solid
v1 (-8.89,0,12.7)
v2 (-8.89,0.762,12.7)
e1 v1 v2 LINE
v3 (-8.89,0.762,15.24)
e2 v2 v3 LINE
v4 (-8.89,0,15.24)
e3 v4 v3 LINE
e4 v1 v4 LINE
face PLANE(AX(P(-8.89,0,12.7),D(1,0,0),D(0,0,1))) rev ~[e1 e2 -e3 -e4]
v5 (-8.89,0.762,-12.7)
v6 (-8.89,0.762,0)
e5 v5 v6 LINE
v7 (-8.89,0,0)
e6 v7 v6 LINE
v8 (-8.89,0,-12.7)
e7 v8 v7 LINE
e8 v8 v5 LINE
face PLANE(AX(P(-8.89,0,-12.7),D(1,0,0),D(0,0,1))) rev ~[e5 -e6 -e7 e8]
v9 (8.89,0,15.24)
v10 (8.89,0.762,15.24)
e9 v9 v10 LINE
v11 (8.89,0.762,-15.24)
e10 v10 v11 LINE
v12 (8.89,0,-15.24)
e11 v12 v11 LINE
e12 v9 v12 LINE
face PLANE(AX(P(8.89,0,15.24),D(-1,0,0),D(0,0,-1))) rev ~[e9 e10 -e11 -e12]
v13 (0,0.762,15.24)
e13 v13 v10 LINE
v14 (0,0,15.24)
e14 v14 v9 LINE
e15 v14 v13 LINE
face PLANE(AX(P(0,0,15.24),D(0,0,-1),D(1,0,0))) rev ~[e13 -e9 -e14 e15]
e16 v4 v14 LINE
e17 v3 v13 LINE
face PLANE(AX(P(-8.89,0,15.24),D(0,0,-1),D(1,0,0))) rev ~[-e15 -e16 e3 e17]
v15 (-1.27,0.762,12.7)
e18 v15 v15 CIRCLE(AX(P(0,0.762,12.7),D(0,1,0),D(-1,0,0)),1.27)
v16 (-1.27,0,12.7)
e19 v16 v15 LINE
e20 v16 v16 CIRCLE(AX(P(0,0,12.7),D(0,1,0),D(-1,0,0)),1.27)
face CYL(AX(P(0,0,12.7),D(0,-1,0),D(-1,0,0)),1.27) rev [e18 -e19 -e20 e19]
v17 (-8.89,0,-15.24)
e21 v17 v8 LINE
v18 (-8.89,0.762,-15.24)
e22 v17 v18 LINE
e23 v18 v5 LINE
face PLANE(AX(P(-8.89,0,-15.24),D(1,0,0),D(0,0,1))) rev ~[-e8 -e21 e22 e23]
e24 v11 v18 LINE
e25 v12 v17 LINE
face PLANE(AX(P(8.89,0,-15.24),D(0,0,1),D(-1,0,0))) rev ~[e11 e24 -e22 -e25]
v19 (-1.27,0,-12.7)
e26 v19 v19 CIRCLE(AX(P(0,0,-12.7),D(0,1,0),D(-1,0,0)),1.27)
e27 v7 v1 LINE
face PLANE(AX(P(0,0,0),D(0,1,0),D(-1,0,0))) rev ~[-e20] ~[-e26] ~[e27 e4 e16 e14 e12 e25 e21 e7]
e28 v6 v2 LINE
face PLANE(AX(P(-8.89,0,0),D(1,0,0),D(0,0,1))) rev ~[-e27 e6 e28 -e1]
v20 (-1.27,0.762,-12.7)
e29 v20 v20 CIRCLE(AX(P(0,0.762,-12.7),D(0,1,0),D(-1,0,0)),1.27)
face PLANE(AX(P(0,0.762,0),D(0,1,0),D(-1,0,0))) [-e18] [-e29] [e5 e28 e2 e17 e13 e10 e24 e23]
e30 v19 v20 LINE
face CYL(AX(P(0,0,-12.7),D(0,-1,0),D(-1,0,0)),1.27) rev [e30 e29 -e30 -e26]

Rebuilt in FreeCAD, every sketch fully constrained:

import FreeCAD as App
import Part
import Sketcher
from FreeCAD import Vector
Q = App.Units.Quantity


def add_polygon(sketch, points):
    """Adds a closed chain of lines whose ends are joined by coincident constraints."""
    first, n = sketch.GeometryCount, len(points)
    for a, b in zip(points, points[1:] + points[:1]):
        sketch.addGeometry(Part.LineSegment(App.Vector(*a, 0), App.Vector(*b, 0)), False)
    for i in range(n):
        sketch.addConstraint(Sketcher.Constraint("Coincident", first + i, 2, first + (i + 1) % n, 1))

doc = App.newDocument("Part")
params = doc.addObject("Spreadsheet::Sheet", "Params")
for row, (alias, value) in enumerate([
    ("sketch1_diameter", "0.1 in"),
    ("sketch1_width", "0.7 in"),
    ("sketch1_height", "1.2 in"),
    ("pad1_length", "0.03 in"),
], start=1):
    params.set(f"A{row}", alias)
    params.set(f"B{row}", "=" + value)
    params.setAlias(f"B{row}", alias)

body = doc.addObject("PartDesign::Body", "Body")

sketch1 = doc.addObject("Sketcher::SketchObject", "Sketch")
body.addObject(sketch1)
sketch1.AttachmentSupport = (doc.XZ_Plane, [""])
sketch1.MapMode = "FlatFace"
add_polygon(sketch1, [(-8.9, -15.2), (-8.9, 15.2), (8.9, 15.2), (8.9, -15.2)])
sketch1.addGeometry(Part.Circle(Vector(0, -12.7, 0), Vector(0, 0, 1), 1.3), False)
sketch1.addGeometry(Part.Circle(Vector(0, 12.7, 0), Vector(0, 0, 1), 1.3), False)
sketch1.addConstraint([
    Sketcher.Constraint("Vertical", 0),
    Sketcher.Constraint("Horizontal", 1),
    Sketcher.Constraint("Vertical", 2),
    Sketcher.Constraint("Horizontal", 3),
    Sketcher.Constraint("Equal", 4, 5),
    Sketcher.Constraint("Symmetric", 4, 3, 5, 3, -1, 1),
    Sketcher.Constraint("Symmetric", 0, 2, 2, 2, -1, 1),
    Sketcher.Constraint("PointOnObject", 4, 3, -2),
    Sketcher.Constraint("Diameter", 4, Q("0.1 in")),
    Sketcher.Constraint("DistanceX", 1, 1, 1, 2, Q("0.7 in")),
    Sketcher.Constraint("DistanceY", 0, 1, 0, 2, Q("1.2 in")),
    Sketcher.Constraint("DistanceY", 4, 3, -1, 1, Q("0.5 in")),
])
sketch1.setExpression("Constraints[12]", "Params.sketch1_diameter")
sketch1.setExpression("Constraints[13]", "Params.sketch1_width")
sketch1.setExpression("Constraints[14]", "Params.sketch1_height")
pad1 = doc.addObject("PartDesign::Pad", "Pad")
body.addObject(pad1)
pad1.Profile = sketch1
pad1.setExpression("Length", "Params.pad1_length")
pad1.Reversed = True

doc.recompute()
